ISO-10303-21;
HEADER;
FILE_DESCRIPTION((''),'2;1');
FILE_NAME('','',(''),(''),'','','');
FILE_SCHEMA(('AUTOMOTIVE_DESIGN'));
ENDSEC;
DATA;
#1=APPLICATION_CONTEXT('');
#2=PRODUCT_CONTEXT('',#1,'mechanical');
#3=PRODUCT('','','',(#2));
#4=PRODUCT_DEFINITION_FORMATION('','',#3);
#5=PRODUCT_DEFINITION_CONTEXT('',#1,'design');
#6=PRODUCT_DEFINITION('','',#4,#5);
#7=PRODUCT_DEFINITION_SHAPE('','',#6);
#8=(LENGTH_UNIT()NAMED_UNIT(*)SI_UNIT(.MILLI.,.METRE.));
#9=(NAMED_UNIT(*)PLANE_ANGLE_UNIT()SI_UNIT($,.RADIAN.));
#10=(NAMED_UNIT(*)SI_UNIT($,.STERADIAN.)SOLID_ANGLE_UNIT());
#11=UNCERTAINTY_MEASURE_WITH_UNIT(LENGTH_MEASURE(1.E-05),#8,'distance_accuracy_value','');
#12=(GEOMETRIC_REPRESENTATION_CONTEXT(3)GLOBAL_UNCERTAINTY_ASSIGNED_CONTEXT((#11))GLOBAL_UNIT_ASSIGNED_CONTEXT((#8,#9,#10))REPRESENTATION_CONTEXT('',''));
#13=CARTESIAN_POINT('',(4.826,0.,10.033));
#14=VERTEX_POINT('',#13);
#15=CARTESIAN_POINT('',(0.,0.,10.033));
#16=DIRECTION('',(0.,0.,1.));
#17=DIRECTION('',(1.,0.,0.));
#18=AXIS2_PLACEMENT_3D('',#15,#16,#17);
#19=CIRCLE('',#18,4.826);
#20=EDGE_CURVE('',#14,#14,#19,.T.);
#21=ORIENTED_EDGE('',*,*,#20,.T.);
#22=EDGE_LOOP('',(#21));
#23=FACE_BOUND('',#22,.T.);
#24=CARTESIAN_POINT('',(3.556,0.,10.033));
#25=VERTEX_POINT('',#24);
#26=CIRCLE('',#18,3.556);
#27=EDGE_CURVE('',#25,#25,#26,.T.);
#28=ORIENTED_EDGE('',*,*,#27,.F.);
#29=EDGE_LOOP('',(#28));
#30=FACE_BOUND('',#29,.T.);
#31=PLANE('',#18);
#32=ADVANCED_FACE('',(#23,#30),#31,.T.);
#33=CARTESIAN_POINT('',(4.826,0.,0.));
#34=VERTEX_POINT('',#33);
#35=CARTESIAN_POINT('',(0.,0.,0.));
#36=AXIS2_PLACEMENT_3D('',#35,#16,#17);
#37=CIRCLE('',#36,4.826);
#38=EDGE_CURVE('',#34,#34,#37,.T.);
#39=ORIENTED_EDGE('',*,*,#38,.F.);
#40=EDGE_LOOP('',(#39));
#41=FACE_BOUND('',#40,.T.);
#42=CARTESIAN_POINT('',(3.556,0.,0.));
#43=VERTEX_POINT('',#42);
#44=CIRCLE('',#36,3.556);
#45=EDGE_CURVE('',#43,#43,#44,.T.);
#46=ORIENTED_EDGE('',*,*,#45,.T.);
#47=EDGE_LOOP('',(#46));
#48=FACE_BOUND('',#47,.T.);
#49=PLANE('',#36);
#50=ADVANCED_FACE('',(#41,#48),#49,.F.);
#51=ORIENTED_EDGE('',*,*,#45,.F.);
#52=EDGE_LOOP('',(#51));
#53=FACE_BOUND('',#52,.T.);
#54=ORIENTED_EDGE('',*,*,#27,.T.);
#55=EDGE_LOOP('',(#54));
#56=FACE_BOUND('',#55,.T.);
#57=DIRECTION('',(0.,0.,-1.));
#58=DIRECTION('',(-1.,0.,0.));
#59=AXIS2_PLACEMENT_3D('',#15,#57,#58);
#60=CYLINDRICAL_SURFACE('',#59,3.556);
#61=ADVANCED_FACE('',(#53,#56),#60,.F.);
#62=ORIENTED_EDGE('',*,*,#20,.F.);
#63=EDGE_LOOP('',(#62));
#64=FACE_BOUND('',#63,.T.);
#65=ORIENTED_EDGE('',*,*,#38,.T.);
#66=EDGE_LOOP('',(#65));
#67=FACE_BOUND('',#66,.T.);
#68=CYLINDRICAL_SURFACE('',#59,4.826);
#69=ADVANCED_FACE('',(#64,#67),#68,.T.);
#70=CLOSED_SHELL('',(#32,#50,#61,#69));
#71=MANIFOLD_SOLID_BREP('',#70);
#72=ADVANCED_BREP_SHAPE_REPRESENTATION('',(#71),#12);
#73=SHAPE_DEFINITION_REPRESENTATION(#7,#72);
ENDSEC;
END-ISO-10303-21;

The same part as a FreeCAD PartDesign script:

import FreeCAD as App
import Part
import Sketcher
from FreeCAD import Vector
Q = App.Units.Quantity

doc = App.newDocument("Part")
body = doc.addObject("PartDesign::Body", "Body")

# Sketch on XY plane
sketch1 = body.newObject("Sketcher::SketchObject", "Sketch")
sketch1.AttachmentSupport = (doc.getObject("XY_Plane"), [""])
sketch1.MapMode = "FlatFace"
sketch1.addGeometry([
    Part.Circle(Vector(0, 0, 0), Vector(0, 0, 1), 4.8),
    Part.Circle(Vector(0, 0, 0), Vector(0, 0, 1), 3.6),
], False)
sketch1.addConstraint([
    Sketcher.Constraint("Coincident", 0, 3, -1, 1),
    Sketcher.Constraint("Coincident", 1, 3, -1, 1),
    Sketcher.Constraint("Diameter", 0, Q("0.38 in")),
    Sketcher.Constraint("Diameter", 1, Q("0.28 in")),
])
pad1 = body.newObject("PartDesign::Pad", "Pad")
pad1.Profile = sketch1
pad1.Length = Q("0.395 in")

doc.recompute()
